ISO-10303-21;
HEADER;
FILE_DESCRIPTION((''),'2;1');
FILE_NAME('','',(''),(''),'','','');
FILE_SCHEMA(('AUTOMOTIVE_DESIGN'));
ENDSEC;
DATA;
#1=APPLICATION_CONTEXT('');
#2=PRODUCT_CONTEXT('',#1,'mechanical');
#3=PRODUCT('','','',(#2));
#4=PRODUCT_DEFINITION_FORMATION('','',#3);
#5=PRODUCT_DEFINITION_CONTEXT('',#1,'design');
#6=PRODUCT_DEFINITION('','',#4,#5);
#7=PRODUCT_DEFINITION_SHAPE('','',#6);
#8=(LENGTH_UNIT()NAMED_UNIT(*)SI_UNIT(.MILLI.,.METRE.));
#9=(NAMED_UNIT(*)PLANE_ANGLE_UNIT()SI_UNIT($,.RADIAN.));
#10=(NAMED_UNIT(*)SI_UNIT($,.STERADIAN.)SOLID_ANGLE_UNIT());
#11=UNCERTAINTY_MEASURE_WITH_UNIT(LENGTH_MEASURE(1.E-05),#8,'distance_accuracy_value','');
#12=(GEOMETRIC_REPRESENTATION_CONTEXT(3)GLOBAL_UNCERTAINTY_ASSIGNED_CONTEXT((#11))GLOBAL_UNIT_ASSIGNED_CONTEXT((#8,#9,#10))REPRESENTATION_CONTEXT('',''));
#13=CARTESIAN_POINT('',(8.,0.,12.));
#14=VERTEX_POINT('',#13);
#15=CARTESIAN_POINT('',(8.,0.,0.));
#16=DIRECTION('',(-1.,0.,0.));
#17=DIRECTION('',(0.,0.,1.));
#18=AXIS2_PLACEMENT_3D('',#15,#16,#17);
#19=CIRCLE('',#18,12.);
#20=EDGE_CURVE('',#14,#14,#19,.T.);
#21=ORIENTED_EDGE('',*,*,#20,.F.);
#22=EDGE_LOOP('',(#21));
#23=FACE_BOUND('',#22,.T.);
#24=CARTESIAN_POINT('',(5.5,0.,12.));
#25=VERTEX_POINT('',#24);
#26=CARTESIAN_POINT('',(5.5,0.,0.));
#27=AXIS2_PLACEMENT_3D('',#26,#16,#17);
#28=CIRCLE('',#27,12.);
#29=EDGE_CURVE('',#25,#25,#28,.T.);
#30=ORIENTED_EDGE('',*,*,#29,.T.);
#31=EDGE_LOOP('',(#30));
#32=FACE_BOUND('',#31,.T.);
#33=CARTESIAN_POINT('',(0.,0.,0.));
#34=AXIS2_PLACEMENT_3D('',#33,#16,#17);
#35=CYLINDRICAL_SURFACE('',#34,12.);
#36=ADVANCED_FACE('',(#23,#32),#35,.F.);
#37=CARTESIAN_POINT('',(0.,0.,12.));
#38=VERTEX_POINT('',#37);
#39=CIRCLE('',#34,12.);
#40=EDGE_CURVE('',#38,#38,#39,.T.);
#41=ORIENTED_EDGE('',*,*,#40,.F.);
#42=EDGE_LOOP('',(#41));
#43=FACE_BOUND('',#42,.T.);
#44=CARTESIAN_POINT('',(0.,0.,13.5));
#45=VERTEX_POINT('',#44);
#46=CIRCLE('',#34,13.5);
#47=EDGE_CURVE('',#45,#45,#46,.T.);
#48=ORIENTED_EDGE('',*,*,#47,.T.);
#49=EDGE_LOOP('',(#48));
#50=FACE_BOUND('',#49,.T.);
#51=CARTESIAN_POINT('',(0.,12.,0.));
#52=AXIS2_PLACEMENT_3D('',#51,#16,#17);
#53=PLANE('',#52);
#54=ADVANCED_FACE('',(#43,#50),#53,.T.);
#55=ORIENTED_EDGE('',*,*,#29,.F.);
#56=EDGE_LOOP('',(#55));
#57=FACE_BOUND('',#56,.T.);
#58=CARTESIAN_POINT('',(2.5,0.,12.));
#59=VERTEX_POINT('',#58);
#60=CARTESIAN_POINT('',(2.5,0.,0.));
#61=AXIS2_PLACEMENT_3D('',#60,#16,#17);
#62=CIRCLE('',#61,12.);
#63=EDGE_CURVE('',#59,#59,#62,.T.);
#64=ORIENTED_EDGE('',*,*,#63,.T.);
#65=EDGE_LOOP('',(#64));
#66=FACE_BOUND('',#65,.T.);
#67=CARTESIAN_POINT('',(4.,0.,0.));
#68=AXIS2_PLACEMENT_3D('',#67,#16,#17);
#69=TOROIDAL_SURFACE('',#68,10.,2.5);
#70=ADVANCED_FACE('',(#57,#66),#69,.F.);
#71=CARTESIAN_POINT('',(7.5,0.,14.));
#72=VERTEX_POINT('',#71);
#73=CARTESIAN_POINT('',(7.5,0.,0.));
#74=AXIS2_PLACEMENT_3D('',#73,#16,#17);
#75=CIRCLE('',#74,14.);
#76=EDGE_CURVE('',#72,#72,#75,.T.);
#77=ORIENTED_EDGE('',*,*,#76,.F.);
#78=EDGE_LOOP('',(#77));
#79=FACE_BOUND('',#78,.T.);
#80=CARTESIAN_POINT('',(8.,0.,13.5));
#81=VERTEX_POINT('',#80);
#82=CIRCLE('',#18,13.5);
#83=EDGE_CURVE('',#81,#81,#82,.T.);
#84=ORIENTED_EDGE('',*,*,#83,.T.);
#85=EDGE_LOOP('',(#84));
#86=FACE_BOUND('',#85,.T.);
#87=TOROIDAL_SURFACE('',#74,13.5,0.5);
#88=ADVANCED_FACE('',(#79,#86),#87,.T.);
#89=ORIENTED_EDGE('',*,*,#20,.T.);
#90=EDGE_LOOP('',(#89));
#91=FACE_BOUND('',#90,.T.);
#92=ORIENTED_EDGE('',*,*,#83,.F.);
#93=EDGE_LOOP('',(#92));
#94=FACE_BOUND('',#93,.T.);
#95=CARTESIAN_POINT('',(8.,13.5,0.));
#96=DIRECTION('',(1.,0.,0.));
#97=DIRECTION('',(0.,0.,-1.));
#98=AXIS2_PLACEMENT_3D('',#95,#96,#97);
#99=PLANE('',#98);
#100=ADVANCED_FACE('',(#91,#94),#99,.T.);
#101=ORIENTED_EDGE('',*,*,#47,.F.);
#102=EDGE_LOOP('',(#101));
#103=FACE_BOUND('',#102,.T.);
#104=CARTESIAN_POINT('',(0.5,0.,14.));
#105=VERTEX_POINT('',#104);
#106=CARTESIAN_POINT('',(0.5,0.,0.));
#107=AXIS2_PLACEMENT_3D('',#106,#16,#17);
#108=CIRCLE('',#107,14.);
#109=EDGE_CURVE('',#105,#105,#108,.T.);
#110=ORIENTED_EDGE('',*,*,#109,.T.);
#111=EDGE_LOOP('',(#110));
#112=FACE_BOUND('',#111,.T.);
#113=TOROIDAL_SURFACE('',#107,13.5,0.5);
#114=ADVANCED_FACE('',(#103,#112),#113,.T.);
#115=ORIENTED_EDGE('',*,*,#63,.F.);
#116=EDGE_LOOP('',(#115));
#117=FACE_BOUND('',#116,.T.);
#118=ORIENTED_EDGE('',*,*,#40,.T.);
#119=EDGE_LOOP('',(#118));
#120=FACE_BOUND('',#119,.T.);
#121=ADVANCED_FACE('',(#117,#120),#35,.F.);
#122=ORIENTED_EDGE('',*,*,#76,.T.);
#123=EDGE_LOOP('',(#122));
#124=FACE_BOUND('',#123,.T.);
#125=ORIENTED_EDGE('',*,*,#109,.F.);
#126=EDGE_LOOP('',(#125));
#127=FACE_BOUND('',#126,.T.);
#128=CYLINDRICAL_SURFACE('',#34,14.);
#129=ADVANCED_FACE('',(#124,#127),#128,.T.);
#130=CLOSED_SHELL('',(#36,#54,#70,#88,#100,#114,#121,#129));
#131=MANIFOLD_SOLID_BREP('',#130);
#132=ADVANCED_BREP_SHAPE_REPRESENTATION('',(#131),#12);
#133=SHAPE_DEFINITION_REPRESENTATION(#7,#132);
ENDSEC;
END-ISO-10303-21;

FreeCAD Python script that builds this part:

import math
import FreeCAD as App
import Part
import Sketcher

V = App.Vector
Q = App.Units.Quantity

doc = App.newDocument("Part")
body = doc.addObject("PartDesign::Body", "Body")

# Sketch on XY plane
sketch1 = body.newObject("Sketcher::SketchObject", "Sketch")
sketch1.AttachmentSupport = (doc.getObject("XY_Plane"), [""])
sketch1.MapMode = "FlatFace"
sketch1.addGeometry(Part.LineSegment(V(0, 13.5, 0), V(0, 12, 0)), False)
sketch1.addGeometry(Part.LineSegment(V(0, 12, 0), V(2.5, 12, 0)), False)
sketch1.addGeometry(Part.ArcOfCircle(Part.Circle(V(4, 10, 0), V(0, 0, 1), 2.5), math.radians(53), math.radians(127)), False)
sketch1.addGeometry(Part.LineSegment(V(5.5, 12, 0), V(8, 12, 0)), False)
sketch1.addGeometry(Part.LineSegment(V(8, 12, 0), V(8, 13.5, 0)), False)
sketch1.addGeometry(Part.ArcOfCircle(Part.Circle(V(7.5, 13.5, 0), V(0, 0, 1), 0.5), math.radians(0), math.radians(90)), False)
sketch1.addGeometry(Part.LineSegment(V(7.5, 14, 0), V(0.5, 14, 0)), False)
sketch1.addGeometry(Part.ArcOfCircle(Part.Circle(V(0.5, 13.5, 0), V(0, 0, 1), 0.5), math.radians(90), math.radians(180)), False)
sketch1.addConstraint(Sketcher.Constraint("Coincident", 0, 2, 1, 1))
sketch1.addConstraint(Sketcher.Constraint("Coincident", 1, 2, 2, 2))
sketch1.addConstraint(Sketcher.Constraint("Coincident", 2, 1, 3, 1))
sketch1.addConstraint(Sketcher.Constraint("Coincident", 3, 2, 4, 1))
sketch1.addConstraint(Sketcher.Constraint("Tangent", 4, 2, 5, 1))
sketch1.addConstraint(Sketcher.Constraint("Tangent", 5, 2, 6, 1))
sketch1.addConstraint(Sketcher.Constraint("Tangent", 6, 2, 7, 1))
sketch1.addConstraint(Sketcher.Constraint("Tangent", 7, 2, 0, 1))
sketch1.addConstraint(Sketcher.Constraint("Vertical", 0))
sketch1.addConstraint(Sketcher.Constraint("Horizontal", 1))
sketch1.addConstraint(Sketcher.Constraint("Horizontal", 3))
sketch1.addConstraint(Sketcher.Constraint("Vertical", 4))
sketch1.addConstraint(Sketcher.Constraint("Horizontal", 6))
sketch1.addConstraint(Sketcher.Constraint("Equal", 5, 7))
sketch1.addConstraint(Sketcher.Constraint("PointOnObject", 0, 2, -2))
sketch1.addConstraint(Sketcher.Constraint("Horizontal", 1, 2, 2, 1))
sketch1.addConstraint(Sketcher.Constraint("Equal", 1, 3))
sketch1.addConstraint(Sketcher.Constraint("Radius", 2, Q("2.5 mm")))
sketch1.addConstraint(Sketcher.Constraint("Radius", 5, Q("0.5 mm")))
sketch1.addConstraint(Sketcher.Constraint("DistanceX", 6, 2, 6, 1, Q("7 mm")))
sketch1.addConstraint(Sketcher.Constraint("DistanceX", 1, 1, 1, 2, Q("2.5 mm")))
sketch1.addConstraint(Sketcher.Constraint("DistanceY", 0, 2, 0, 1, Q("1.5 mm")))
sketch1.addConstraint(Sketcher.Constraint("DistanceY", -1, 1, 2, 3, Q("10 mm")))
revolution = body.newObject("PartDesign::Revolution", "Revolution")
revolution.Profile = sketch1
revolution.ReferenceAxis = (sketch1, ["H_Axis"])
revolution.Angle = 360

doc.recompute()
